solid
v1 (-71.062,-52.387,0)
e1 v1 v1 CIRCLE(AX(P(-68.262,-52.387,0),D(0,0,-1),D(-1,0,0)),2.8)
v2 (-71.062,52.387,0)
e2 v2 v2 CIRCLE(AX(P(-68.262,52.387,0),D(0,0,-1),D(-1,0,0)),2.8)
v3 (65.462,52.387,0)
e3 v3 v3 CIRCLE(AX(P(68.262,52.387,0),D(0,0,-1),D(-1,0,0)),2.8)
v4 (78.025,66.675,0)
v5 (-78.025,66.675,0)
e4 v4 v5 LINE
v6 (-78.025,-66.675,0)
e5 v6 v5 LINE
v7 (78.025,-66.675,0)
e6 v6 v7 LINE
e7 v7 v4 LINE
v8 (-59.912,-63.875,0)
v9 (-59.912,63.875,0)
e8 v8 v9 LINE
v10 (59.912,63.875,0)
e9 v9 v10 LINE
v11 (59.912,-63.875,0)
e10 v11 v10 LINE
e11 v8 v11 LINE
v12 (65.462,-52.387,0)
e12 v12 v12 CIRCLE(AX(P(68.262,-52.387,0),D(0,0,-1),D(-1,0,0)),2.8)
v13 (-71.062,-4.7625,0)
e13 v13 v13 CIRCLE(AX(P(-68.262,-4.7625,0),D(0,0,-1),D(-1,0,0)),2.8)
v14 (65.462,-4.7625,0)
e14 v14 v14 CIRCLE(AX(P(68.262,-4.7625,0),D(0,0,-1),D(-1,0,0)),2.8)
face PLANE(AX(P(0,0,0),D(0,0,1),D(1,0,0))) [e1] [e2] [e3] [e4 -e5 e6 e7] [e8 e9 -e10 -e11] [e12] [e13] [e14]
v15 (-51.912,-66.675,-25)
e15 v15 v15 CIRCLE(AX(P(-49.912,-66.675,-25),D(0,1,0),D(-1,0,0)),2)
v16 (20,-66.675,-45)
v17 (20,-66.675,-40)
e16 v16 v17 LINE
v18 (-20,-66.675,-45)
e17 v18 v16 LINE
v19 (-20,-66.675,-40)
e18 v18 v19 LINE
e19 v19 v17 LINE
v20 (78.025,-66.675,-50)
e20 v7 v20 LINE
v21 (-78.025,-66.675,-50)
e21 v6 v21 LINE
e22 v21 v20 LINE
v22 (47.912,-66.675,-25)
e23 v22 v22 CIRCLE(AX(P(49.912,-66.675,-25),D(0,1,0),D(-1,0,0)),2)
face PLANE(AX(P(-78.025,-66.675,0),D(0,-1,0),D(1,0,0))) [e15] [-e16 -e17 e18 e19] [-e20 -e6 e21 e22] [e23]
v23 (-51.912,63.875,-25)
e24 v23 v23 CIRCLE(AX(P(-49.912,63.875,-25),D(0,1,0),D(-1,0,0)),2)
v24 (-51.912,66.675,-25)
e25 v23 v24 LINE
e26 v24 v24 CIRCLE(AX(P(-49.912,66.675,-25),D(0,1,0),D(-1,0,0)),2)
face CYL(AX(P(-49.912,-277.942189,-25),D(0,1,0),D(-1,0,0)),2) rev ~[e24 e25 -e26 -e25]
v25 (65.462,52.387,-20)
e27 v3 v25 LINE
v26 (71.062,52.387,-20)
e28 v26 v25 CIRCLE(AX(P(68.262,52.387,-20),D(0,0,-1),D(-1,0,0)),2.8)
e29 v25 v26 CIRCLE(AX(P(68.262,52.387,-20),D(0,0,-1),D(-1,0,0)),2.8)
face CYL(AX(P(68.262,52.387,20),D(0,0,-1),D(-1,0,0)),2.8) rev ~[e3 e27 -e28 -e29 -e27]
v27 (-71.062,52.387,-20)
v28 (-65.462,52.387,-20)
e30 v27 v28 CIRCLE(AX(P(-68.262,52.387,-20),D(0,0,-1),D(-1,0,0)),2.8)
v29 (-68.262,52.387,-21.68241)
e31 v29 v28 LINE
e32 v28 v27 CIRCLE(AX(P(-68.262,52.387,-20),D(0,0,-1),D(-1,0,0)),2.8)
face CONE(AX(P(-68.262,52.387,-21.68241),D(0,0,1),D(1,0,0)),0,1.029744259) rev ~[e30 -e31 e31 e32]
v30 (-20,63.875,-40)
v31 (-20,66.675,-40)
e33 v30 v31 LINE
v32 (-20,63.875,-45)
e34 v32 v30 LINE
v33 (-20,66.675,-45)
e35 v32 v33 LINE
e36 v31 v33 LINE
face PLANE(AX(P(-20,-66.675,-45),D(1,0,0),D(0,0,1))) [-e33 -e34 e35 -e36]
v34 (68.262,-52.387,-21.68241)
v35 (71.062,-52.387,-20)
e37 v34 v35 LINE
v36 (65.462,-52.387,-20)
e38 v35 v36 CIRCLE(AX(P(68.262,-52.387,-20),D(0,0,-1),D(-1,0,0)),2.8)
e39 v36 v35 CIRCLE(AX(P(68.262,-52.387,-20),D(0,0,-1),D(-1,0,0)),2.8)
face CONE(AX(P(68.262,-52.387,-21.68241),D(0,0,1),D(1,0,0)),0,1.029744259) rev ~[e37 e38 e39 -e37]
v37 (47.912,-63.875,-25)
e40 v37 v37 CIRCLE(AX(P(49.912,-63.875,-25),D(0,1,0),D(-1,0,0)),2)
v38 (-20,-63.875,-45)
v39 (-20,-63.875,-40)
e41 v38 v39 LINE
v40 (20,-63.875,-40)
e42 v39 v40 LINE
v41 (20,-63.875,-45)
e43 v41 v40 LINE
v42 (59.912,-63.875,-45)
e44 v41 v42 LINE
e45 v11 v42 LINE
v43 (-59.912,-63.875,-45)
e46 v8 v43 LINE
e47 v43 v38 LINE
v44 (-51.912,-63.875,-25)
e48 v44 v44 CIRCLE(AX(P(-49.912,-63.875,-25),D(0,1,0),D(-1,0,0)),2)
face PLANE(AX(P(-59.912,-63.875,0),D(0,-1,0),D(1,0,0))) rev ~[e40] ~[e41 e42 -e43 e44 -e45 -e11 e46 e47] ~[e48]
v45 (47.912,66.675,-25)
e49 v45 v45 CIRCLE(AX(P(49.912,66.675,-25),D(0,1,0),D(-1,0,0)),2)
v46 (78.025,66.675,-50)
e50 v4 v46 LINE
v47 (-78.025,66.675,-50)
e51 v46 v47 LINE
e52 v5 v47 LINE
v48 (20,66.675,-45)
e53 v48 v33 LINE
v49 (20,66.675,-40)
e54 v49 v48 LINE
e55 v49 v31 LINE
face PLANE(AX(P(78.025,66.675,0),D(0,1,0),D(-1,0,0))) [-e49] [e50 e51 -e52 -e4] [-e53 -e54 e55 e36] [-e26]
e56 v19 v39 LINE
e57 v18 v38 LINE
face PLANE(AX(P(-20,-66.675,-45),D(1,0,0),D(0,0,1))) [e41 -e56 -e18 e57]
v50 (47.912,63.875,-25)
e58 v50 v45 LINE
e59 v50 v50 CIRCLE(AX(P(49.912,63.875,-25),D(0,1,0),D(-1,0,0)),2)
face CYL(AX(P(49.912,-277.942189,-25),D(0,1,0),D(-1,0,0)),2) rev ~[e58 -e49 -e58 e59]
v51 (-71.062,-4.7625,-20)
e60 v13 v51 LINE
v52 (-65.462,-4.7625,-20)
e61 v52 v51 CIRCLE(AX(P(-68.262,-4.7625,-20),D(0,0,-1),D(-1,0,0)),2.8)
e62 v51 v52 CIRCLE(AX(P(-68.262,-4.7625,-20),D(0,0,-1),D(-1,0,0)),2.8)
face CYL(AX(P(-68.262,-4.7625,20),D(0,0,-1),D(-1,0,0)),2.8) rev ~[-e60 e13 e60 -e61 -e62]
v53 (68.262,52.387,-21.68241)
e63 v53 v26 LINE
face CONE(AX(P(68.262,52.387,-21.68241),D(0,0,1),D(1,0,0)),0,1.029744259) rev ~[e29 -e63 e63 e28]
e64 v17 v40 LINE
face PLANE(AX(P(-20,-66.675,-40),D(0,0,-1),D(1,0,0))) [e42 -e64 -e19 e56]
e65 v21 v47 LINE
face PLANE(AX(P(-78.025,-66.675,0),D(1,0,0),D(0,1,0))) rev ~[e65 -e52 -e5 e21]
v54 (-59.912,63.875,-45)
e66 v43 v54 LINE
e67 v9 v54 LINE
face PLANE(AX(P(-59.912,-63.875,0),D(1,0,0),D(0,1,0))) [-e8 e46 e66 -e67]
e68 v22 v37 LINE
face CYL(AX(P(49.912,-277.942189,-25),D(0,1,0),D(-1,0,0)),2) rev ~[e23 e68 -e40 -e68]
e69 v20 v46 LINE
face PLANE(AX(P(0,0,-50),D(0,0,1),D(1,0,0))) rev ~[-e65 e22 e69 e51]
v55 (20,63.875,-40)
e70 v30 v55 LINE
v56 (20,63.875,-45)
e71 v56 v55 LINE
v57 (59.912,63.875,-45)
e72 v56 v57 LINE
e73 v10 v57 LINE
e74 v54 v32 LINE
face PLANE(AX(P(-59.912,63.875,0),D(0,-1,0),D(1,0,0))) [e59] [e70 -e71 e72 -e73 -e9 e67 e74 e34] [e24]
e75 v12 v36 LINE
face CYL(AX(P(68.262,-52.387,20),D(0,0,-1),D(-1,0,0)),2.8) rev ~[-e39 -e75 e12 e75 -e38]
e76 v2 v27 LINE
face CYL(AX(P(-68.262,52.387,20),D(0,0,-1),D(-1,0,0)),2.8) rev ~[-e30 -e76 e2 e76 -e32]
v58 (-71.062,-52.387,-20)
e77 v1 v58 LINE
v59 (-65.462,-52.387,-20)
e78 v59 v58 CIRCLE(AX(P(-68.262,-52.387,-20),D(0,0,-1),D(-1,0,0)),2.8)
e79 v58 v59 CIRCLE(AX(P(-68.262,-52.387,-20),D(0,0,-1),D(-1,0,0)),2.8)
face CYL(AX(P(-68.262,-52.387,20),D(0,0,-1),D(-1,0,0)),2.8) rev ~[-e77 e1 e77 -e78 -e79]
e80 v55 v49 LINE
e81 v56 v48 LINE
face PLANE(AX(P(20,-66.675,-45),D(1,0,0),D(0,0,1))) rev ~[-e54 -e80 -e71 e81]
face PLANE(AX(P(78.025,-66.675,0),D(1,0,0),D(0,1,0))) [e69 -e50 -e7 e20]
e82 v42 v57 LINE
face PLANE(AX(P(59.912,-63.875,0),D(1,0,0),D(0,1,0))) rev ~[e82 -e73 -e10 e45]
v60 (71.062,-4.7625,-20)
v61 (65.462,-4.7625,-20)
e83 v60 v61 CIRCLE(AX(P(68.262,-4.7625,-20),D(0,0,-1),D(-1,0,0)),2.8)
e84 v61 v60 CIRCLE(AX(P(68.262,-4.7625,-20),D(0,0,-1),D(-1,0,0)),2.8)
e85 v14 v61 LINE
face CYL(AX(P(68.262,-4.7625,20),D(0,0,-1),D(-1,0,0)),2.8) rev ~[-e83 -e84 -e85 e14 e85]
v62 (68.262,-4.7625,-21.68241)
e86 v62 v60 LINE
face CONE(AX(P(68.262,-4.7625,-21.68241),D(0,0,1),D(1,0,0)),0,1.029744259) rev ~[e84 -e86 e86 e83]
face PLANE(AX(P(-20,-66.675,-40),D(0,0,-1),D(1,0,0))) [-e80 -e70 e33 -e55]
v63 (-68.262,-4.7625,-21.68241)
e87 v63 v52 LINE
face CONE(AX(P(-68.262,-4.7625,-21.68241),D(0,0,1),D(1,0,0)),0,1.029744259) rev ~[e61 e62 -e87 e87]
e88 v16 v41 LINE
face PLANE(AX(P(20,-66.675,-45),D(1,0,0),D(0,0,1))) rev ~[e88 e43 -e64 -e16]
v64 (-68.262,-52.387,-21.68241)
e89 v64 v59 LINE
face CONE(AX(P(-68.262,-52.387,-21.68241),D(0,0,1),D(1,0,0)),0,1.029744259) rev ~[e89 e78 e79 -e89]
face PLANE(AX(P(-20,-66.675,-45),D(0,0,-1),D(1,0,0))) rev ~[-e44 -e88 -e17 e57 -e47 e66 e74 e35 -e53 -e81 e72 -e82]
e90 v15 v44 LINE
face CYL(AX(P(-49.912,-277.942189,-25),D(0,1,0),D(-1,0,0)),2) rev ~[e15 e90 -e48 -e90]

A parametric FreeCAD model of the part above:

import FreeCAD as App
import Part
import Sketcher
Q = App.Units.Quantity

doc = App.newDocument("Part")
params = doc.addObject("Spreadsheet::Sheet", "Params")
for row, (alias, value) in enumerate([
    ("sketch1_width", "156.05 mm"),
    ("sketch1_height", "133.35 mm"),
    ("pad1_length", "50 mm"),
    ("sketch2_diameter", "5.6 mm"),
    ("hole_diameter", "5.6 mm"),
    ("hole_depth", "20 mm"),
    ("sketch3_height", "127.75 mm"),
    ("pocket1_length", "45 mm"),
    ("sketch4_width", "40 mm"),
    ("sketch4_height", "5 mm"),
    ("sketch5_diameter", "4 mm"),
    ("hole2_diameter", "4 mm"),
], start=1):
    params.set(f"A{row}", alias)
    params.set(f"B{row}", "=" + value)
    params.setAlias(f"B{row}", alias)

body = doc.addObject("PartDesign::Body", "Body")

# Sketch on XY plane
sketch1 = doc.addObject("Sketcher::SketchObject", "Sketch")
body.addObject(sketch1)
sketch1.AttachmentSupport = (doc.XY_Plane, [""])
sketch1.MapMode = "FlatFace"
sketch1.addGeometry(Part.LineSegment(App.Vector(-78, 67, 0), App.Vector(-78, -67, 0)), False)
sketch1.addGeometry(Part.LineSegment(App.Vector(-78, -67, 0), App.Vector(78, -67, 0)), False)
sketch1.addGeometry(Part.LineSegment(App.Vector(78, -67, 0), App.Vector(78, 67, 0)), False)
sketch1.addGeometry(Part.LineSegment(App.Vector(78, 67, 0), App.Vector(-78, 67, 0)), False)
sketch1.addConstraint(Sketcher.Constraint("Coincident", 0, 2, 1, 1))
sketch1.addConstraint(Sketcher.Constraint("Coincident", 1, 2, 2, 1))
sketch1.addConstraint(Sketcher.Constraint("Coincident", 2, 2, 3, 1))
sketch1.addConstraint(Sketcher.Constraint("Coincident", 3, 2, 0, 1))
sketch1.addConstraint(Sketcher.Constraint("Vertical", 0))
sketch1.addConstraint(Sketcher.Constraint("Horizontal", 1))
sketch1.addConstraint(Sketcher.Constraint("Vertical", 2))
sketch1.addConstraint(Sketcher.Constraint("Horizontal", 3))
sketch1.addConstraint(Sketcher.Constraint("Symmetric", 0, 2, 2, 2, -1, 1))
sketch1.addConstraint(Sketcher.Constraint("DistanceX", 1, 1, 1, 2, Q("156.05 mm")))
sketch1.addConstraint(Sketcher.Constraint("DistanceY", 0, 2, 0, 1, Q("133.35 mm")))
sketch1.setExpression("Constraints[9]", "Params.sketch1_width")
sketch1.setExpression("Constraints[10]", "Params.sketch1_height")
pad1 = doc.addObject("PartDesign::Pad", "Pad")
body.addObject(pad1)
pad1.Profile = sketch1
pad1.setExpression("Length", "Params.pad1_length")
pad1.Reversed = True

# Sketch on XY plane
sketch2 = doc.addObject("Sketcher::SketchObject", "Sketch001")
body.addObject(sketch2)
sketch2.AttachmentSupport = (doc.XY_Plane, [""])
sketch2.MapMode = "FlatFace"
sketch2.addGeometry(Part.Circle(App.Vector(-68.3, 52.4, 0), App.Vector(0, 0, 1), 2.8), False)
sketch2.addGeometry(Part.Circle(App.Vector(-68.3, -4.8, 0), App.Vector(0, 0, 1), 2.8), False)
sketch2.addGeometry(Part.Circle(App.Vector(-68.3, -52.4, 0), App.Vector(0, 0, 1), 2.8), False)
sketch2.addGeometry(Part.Circle(App.Vector(68.3, -52.4, 0), App.Vector(0, 0, 1), 2.8), False)
sketch2.addGeometry(Part.Circle(App.Vector(68.3, -4.8, 0), App.Vector(0, 0, 1), 2.8), False)
sketch2.addGeometry(Part.Circle(App.Vector(68.3, 52.4, 0), App.Vector(0, 0, 1), 2.8), False)
sketch2.addConstraint(Sketcher.Constraint("Equal", 0, 1))
sketch2.addConstraint(Sketcher.Constraint("Equal", 1, 2))
sketch2.addConstraint(Sketcher.Constraint("Equal", 2, 3))
sketch2.addConstraint(Sketcher.Constraint("Equal", 3, 4))
sketch2.addConstraint(Sketcher.Constraint("Equal", 4, 5))
sketch2.addConstraint(Sketcher.Constraint("Symmetric", 0, 3, 3, 3, -1, 1))
sketch2.addConstraint(Sketcher.Constraint("Symmetric", 2, 3, 5, 3, -1, 1))
sketch2.addConstraint(Sketcher.Constraint("Symmetric", 2, 3, 3, 3, -2))
sketch2.addConstraint(Sketcher.Constraint("Symmetric", 1, 3, 4, 3, -2))
sketch2.addConstraint(Sketcher.Constraint("Vertical", 0, 3, 1, 3))
sketch2.addConstraint(Sketcher.Constraint("Diameter", 0, Q("5.6 mm")))
sketch2.addConstraint(Sketcher.Constraint("DistanceX", 0, 3, -1, 1, Q("68.262 mm")))
sketch2.addConstraint(Sketcher.Constraint("DistanceY", -1, 1, 0, 3, Q("52.387 mm")))
sketch2.addConstraint(Sketcher.Constraint("DistanceY", 1, 3, -1, 1, Q("4.7625 mm")))
sketch2.setExpression("Constraints[10]", "Params.sketch2_diameter")
doc.recompute()
hole = doc.addObject("PartDesign::Hole", "Hole")
body.addObject(hole)
hole.Profile = sketch2
hole.ThreadType = "None"
hole.setExpression("Diameter", "Params.hole_diameter")
hole.DepthType = "Dimension"
hole.setExpression("Depth", "Params.hole_depth")
hole.DrillPoint = "Angled"
hole.DrillPointAngle = 118

# Sketch on XY plane
sketch3 = doc.addObject("Sketcher::SketchObject", "Sketch002")
body.addObject(sketch3)
sketch3.AttachmentSupport = (doc.XY_Plane, [""])
sketch3.MapMode = "FlatFace"
sketch3.addGeometry(Part.LineSegment(App.Vector(-60, 64, 0), App.Vector(-60, -64, 0)), False)
sketch3.addGeometry(Part.LineSegment(App.Vector(-60, -64, 0), App.Vector(60, -64, 0)), False)
sketch3.addGeometry(Part.LineSegment(App.Vector(60, -64, 0), App.Vector(60, 64, 0)), False)
sketch3.addGeometry(Part.LineSegment(App.Vector(60, 64, 0), App.Vector(-60, 64, 0)), False)
sketch3.addConstraint(Sketcher.Constraint("Coincident", 0, 2, 1, 1))
sketch3.addConstraint(Sketcher.Constraint("Coincident", 1, 2, 2, 1))
sketch3.addConstraint(Sketcher.Constraint("Coincident", 2, 2, 3, 1))
sketch3.addConstraint(Sketcher.Constraint("Coincident", 3, 2, 0, 1))
sketch3.addConstraint(Sketcher.Constraint("Vertical", 0))
sketch3.addConstraint(Sketcher.Constraint("Horizontal", 1))
sketch3.addConstraint(Sketcher.Constraint("Vertical", 2))
sketch3.addConstraint(Sketcher.Constraint("Horizontal", 3))
sketch3.addConstraint(Sketcher.Constraint("Symmetric", 0, 2, 2, 2, -1, 1))
sketch3.addConstraint(Sketcher.Constraint("DistanceY", 0, 2, 0, 1, Q("127.75 mm")))
sketch3.addConstraint(Sketcher.Constraint("DistanceX", 1, 1, 1, 2, Q("119.824 mm")))
sketch3.setExpression("Constraints[9]", "Params.sketch3_height")
pocket1 = doc.addObject("PartDesign::Pocket", "Pocket")
body.addObject(pocket1)
pocket1.Profile = sketch3
pocket1.setExpression("Length", "Params.pocket1_length")

# Sketch on XZ plane
sketch4 = doc.addObject("Sketcher::SketchObject", "Sketch003")
body.addObject(sketch4)
sketch4.AttachmentSupport = (doc.XZ_Plane, [""])
sketch4.MapMode = "FlatFace"
sketch4.AttachmentOffset = App.Placement(App.Vector(0, 0, 66.675), App.Rotation())
sketch4.addGeometry(Part.LineSegment(App.Vector(-20, -40, 0), App.Vector(-20, -45, 0)), False)
sketch4.addGeometry(Part.LineSegment(App.Vector(-20, -45, 0), App.Vector(20, -45, 0)), False)
sketch4.addGeometry(Part.LineSegment(App.Vector(20, -45, 0), App.Vector(20, -40, 0)), False)
sketch4.addGeometry(Part.LineSegment(App.Vector(20, -40, 0), App.Vector(-20, -40, 0)), False)
sketch4.addConstraint(Sketcher.Constraint("Coincident", 0, 2, 1, 1))
sketch4.addConstraint(Sketcher.Constraint("Coincident", 1, 2, 2, 1))
sketch4.addConstraint(Sketcher.Constraint("Coincident", 2, 2, 3, 1))
sketch4.addConstraint(Sketcher.Constraint("Coincident", 3, 2, 0, 1))
sketch4.addConstraint(Sketcher.Constraint("Vertical", 0))
sketch4.addConstraint(Sketcher.Constraint("Horizontal", 1))
sketch4.addConstraint(Sketcher.Constraint("Vertical", 2))
sketch4.addConstraint(Sketcher.Constraint("Horizontal", 3))
sketch4.addConstraint(Sketcher.Constraint("DistanceX", 1, 1, 1, 2, Q("40 mm")))
sketch4.addConstraint(Sketcher.Constraint("DistanceY", 0, 2, 0, 1, Q("5 mm")))
sketch4.addConstraint(Sketcher.Constraint("DistanceX", 0, 2, -1, 1, Q("20 mm")))
sketch4.addConstraint(Sketcher.Constraint("DistanceY", 0, 2, -1, 1, Q("45 mm")))
sketch4.setExpression("Constraints[8]", "Params.sketch4_width")
sketch4.setExpression("Constraints[9]", "Params.sketch4_height")
pocket2 = doc.addObject("PartDesign::Pocket", "Pocket001")
body.addObject(pocket2)
pocket2.Profile = sketch4
pocket2.Type = "ThroughAll"

# Sketch on XZ plane
sketch5 = doc.addObject("Sketcher::SketchObject", "Sketch004")
body.addObject(sketch5)
sketch5.AttachmentSupport = (doc.XZ_Plane, [""])
sketch5.MapMode = "FlatFace"
sketch5.AttachmentOffset = App.Placement(App.Vector(0, 0, 66.675), App.Rotation())
sketch5.addGeometry(Part.Circle(App.Vector(-49.9, -25, 0), App.Vector(0, 0, 1), 2), False)
sketch5.addGeometry(Part.Circle(App.Vector(49.9, -25, 0), App.Vector(0, 0, 1), 2), False)
sketch5.addConstraint(Sketcher.Constraint("Equal", 0, 1))
sketch5.addConstraint(Sketcher.Constraint("Symmetric", 0, 3, 1, 3, -2))
sketch5.addConstraint(Sketcher.Constraint("Diameter", 0, Q("4 mm")))
sketch5.addConstraint(Sketcher.Constraint("DistanceY", 0, 3, -1, 1, Q("25 mm")))
sketch5.addConstraint(Sketcher.Constraint("DistanceX", 0, 3, -1, 1, Q("49.912 mm")))
sketch5.setExpression("Constraints[2]", "Params.sketch5_diameter")
doc.recompute()
hole2 = doc.addObject("PartDesign::Hole", "Hole001")
body.addObject(hole2)
hole2.Profile = sketch5
hole2.ThreadType = "None"
hole2.setExpression("Diameter", "Params.hole2_diameter")
hole2.DepthType = "ThroughAll"

doc.recompute()
